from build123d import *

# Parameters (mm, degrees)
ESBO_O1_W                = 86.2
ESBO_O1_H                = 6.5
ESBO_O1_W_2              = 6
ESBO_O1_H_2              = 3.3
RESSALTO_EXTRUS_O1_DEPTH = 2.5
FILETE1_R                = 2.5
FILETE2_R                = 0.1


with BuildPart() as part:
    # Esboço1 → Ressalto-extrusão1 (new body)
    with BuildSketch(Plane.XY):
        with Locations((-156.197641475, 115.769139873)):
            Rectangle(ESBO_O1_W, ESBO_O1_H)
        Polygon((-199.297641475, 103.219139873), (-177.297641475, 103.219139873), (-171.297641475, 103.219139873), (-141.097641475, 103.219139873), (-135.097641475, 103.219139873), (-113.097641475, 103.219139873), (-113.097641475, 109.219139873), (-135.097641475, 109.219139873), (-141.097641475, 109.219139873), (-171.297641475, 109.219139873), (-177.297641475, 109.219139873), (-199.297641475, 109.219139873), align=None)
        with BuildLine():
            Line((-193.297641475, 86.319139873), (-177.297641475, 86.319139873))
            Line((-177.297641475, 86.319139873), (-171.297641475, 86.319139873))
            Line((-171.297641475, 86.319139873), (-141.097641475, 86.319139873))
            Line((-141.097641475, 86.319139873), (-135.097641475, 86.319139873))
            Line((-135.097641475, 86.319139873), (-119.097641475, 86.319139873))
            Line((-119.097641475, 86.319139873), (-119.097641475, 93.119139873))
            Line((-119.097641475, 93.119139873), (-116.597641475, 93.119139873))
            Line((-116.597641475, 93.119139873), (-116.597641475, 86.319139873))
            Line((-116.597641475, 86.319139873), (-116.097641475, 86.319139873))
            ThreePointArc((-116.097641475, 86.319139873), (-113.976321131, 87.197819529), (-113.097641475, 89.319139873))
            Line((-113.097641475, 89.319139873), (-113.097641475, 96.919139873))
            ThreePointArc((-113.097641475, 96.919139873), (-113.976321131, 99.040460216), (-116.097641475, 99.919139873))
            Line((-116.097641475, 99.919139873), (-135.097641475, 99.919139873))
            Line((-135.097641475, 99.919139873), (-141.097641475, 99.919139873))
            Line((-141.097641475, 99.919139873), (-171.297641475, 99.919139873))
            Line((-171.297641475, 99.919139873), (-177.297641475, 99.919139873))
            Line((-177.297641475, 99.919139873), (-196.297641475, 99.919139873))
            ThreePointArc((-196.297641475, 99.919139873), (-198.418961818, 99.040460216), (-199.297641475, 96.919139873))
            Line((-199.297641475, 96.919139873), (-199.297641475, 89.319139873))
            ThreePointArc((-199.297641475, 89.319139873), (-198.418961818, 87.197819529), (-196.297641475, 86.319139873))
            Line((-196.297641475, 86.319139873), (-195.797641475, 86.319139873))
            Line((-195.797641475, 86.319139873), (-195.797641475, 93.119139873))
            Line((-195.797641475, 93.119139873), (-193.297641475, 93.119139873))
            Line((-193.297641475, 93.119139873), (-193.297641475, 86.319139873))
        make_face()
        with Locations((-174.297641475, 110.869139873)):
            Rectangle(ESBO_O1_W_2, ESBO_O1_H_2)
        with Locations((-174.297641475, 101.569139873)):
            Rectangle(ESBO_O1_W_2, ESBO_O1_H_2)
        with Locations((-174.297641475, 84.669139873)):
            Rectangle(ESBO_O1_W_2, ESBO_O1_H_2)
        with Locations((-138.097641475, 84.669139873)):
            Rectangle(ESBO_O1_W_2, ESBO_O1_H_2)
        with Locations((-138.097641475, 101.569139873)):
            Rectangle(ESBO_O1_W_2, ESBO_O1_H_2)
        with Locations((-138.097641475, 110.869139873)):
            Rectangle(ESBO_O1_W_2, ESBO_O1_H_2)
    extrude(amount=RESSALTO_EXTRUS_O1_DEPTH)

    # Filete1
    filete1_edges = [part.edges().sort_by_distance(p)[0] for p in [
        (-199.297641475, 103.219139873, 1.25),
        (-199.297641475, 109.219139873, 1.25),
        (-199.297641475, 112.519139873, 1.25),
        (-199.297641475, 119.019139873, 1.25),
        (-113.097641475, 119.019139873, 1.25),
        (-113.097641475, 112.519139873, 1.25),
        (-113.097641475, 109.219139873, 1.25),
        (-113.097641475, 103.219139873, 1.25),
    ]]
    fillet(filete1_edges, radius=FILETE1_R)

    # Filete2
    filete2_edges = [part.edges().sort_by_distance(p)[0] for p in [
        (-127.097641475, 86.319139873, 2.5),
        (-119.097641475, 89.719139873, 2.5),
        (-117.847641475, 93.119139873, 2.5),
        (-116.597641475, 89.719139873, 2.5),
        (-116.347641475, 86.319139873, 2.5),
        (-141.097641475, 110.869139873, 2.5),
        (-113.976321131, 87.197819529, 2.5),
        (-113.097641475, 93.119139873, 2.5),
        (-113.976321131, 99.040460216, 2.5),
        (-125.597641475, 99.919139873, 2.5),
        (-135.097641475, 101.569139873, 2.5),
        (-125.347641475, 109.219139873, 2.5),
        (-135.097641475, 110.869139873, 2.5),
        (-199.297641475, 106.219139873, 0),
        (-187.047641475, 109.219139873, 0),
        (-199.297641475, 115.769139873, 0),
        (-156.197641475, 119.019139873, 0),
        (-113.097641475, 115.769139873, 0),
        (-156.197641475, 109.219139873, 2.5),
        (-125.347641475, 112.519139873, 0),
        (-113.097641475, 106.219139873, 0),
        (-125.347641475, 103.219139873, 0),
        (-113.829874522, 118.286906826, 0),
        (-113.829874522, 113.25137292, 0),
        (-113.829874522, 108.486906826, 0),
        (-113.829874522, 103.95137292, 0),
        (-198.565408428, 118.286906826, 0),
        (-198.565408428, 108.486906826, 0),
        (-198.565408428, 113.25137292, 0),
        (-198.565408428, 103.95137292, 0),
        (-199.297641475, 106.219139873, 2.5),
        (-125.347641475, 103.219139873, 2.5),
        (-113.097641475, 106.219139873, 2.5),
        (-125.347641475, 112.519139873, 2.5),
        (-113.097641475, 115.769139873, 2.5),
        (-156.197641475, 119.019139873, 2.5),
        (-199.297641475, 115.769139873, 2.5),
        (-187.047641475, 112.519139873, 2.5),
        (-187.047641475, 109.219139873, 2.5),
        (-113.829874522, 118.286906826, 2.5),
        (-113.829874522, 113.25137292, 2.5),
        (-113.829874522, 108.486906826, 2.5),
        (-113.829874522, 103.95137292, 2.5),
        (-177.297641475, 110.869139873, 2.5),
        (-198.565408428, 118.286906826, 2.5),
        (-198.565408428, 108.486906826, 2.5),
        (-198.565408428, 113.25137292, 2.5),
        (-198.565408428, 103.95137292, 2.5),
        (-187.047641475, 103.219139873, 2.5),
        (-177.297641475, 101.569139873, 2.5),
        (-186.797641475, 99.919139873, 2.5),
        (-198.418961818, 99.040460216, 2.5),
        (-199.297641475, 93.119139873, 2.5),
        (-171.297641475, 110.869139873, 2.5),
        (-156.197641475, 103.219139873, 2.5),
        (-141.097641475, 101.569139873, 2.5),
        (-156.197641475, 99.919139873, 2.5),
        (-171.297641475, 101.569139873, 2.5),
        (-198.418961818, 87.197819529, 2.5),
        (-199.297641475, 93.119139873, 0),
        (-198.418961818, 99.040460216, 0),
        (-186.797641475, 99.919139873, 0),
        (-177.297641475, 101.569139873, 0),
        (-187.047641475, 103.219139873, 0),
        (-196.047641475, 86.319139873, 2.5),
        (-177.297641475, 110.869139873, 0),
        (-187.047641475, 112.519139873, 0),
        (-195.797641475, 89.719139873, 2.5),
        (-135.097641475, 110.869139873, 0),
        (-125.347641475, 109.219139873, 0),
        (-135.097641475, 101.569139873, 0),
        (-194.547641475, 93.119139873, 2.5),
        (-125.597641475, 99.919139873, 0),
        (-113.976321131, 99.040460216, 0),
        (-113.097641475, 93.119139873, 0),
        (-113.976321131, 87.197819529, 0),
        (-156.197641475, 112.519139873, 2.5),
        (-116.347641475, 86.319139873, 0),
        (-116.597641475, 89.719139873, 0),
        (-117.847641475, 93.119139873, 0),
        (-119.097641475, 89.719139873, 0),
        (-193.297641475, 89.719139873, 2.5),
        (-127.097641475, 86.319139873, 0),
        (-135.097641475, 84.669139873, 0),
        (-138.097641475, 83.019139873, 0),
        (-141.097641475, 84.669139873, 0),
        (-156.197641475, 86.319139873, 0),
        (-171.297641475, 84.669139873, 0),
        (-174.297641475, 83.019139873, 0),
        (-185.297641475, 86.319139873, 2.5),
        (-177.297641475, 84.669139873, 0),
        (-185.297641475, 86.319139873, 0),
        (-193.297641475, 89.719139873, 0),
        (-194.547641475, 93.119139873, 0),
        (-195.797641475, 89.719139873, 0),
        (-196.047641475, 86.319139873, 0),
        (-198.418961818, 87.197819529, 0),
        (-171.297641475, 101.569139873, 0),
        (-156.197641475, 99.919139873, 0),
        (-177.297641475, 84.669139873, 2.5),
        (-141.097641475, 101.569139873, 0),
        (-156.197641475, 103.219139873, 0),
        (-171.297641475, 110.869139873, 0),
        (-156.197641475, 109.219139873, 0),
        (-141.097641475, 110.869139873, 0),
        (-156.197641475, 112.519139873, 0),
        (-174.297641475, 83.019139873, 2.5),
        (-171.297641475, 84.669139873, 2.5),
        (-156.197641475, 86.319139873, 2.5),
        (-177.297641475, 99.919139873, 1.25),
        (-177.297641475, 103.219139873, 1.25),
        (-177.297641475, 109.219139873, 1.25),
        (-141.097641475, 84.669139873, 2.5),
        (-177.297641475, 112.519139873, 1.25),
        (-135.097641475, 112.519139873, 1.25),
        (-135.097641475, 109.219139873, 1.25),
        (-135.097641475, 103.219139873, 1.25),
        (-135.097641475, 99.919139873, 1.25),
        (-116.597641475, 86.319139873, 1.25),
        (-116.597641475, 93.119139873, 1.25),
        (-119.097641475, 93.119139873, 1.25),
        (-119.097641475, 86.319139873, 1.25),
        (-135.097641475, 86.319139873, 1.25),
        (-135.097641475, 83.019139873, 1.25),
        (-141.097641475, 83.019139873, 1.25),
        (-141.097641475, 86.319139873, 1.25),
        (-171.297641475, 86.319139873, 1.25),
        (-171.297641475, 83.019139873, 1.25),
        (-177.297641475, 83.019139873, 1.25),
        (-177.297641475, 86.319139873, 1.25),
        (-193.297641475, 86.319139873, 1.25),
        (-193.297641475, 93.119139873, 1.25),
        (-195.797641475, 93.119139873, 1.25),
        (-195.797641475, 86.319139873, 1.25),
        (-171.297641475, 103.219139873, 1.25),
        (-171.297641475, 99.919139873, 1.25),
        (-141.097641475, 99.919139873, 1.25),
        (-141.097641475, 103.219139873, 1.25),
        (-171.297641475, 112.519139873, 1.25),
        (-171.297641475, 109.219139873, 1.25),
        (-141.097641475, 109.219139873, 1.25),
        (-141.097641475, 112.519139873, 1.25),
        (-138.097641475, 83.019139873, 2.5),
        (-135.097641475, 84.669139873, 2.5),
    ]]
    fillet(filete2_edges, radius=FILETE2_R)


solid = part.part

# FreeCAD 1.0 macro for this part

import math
import FreeCAD as App
import Part
import Sketcher
from FreeCAD import Vector


def edges_at(feature, points):
    """Names of the edges that pass closest to the given points."""
    edges = feature.Shape.Edges
    near = lambda p: min(range(len(edges)), key=lambda i: edges[i].distToShape(Part.Vertex(*p))[0])
    return sorted({f"Edge{near(p) + 1}" for p in points})

doc = App.newDocument("Part")
body = doc.addObject("PartDesign::Body", "Body")

# Sketch on XY plane
sketch1 = body.newObject("Sketcher::SketchObject", "Sketch")
sketch1.AttachmentSupport = (doc.getObject("XY_Plane"), [""])
sketch1.MapMode = "FlatFace"
sketch1.addGeometry([
    Part.LineSegment(Vector(-199.3, 119, 0), Vector(-199.3, 112.5, 0)),  # 0
    Part.LineSegment(Vector(-199.3, 112.5, 0), Vector(-177.3, 112.5, 0)),  # 1
    Part.LineSegment(Vector(-177.3, 112.5, 0), Vector(-177.3, 109.2, 0)),  # 2
    Part.LineSegment(Vector(-177.3, 109.2, 0), Vector(-199.3, 109.2, 0)),  # 3
    Part.LineSegment(Vector(-199.3, 109.2, 0), Vector(-199.3, 103.2, 0)),  # 4
    Part.LineSegment(Vector(-199.3, 103.2, 0), Vector(-177.3, 103.2, 0)),  # 5
    Part.LineSegment(Vector(-177.3, 103.2, 0), Vector(-177.3, 99.9, 0)),  # 6
    Part.LineSegment(Vector(-177.3, 99.9, 0), Vector(-196.3, 99.9, 0)),  # 7
    Part.ArcOfCircle(Part.Circle(Vector(-196.3, 96.9, 0), Vector(0, 0, 1), 3), math.radians(90), math.radians(180)),  # 8
    Part.LineSegment(Vector(-199.3, 96.9, 0), Vector(-199.3, 89.3, 0)),  # 9
    Part.ArcOfCircle(Part.Circle(Vector(-196.3, 89.3, 0), Vector(0, 0, 1), 3), math.radians(180), math.radians(270)),  # 10
    Part.LineSegment(Vector(-196.3, 86.3, 0), Vector(-195.8, 86.3, 0)),  # 11
    Part.LineSegment(Vector(-195.8, 86.3, 0), Vector(-195.8, 93.1, 0)),  # 12
    Part.LineSegment(Vector(-195.8, 93.1, 0), Vector(-193.3, 93.1, 0)),  # 13
    Part.LineSegment(Vector(-193.3, 93.1, 0), Vector(-193.3, 86.3, 0)),  # 14
    Part.LineSegment(Vector(-193.3, 86.3, 0), Vector(-177.3, 86.3, 0)),  # 15
    Part.LineSegment(Vector(-177.3, 86.3, 0), Vector(-177.3, 83, 0)),  # 16
    Part.LineSegment(Vector(-177.3, 83, 0), Vector(-171.3, 83, 0)),  # 17
    Part.LineSegment(Vector(-171.3, 83, 0), Vector(-171.3, 86.3, 0)),  # 18
    Part.LineSegment(Vector(-171.3, 86.3, 0), Vector(-141.1, 86.3, 0)),  # 19
    Part.LineSegment(Vector(-141.1, 86.3, 0), Vector(-141.1, 83, 0)),  # 20
    Part.LineSegment(Vector(-141.1, 83, 0), Vector(-135.1, 83, 0)),  # 21
    Part.LineSegment(Vector(-135.1, 83, 0), Vector(-135.1, 86.3, 0)),  # 22
    Part.LineSegment(Vector(-135.1, 86.3, 0), Vector(-119.1, 86.3, 0)),  # 23
    Part.LineSegment(Vector(-119.1, 86.3, 0), Vector(-119.1, 93.1, 0)),  # 24
    Part.LineSegment(Vector(-119.1, 93.1, 0), Vector(-116.6, 93.1, 0)),  # 25
    Part.LineSegment(Vector(-116.6, 93.1, 0), Vector(-116.6, 86.3, 0)),  # 26
    Part.LineSegment(Vector(-116.6, 86.3, 0), Vector(-116.1, 86.3, 0)),  # 27
    Part.ArcOfCircle(Part.Circle(Vector(-116.1, 89.3, 0), Vector(0, 0, 1), 3), math.radians(-90), math.radians(0)),  # 28
    Part.LineSegment(Vector(-113.1, 89.3, 0), Vector(-113.1, 96.9, 0)),  # 29
    Part.ArcOfCircle(Part.Circle(Vector(-116.1, 96.9, 0), Vector(0, 0, 1), 3), math.radians(0), math.radians(90)),  # 30
    Part.LineSegment(Vector(-116.1, 99.9, 0), Vector(-135.1, 99.9, 0)),  # 31
    Part.LineSegment(Vector(-135.1, 99.9, 0), Vector(-135.1, 103.2, 0)),  # 32
    Part.LineSegment(Vector(-135.1, 103.2, 0), Vector(-113.1, 103.2, 0)),  # 33
    Part.LineSegment(Vector(-113.1, 103.2, 0), Vector(-113.1, 109.2, 0)),  # 34
    Part.LineSegment(Vector(-113.1, 109.2, 0), Vector(-135.1, 109.2, 0)),  # 35
    Part.LineSegment(Vector(-135.1, 109.2, 0), Vector(-135.1, 112.5, 0)),  # 36
    Part.LineSegment(Vector(-135.1, 112.5, 0), Vector(-113.1, 112.5, 0)),  # 37
    Part.LineSegment(Vector(-113.1, 112.5, 0), Vector(-113.1, 119, 0)),  # 38
    Part.LineSegment(Vector(-113.1, 119, 0), Vector(-199.3, 119, 0)),  # 39
    Part.LineSegment(Vector(-141.1, 109.2, 0), Vector(-171.3, 109.2, 0)),  # 40
    Part.LineSegment(Vector(-171.3, 109.2, 0), Vector(-171.3, 112.5, 0)),  # 41
    Part.LineSegment(Vector(-171.3, 112.5, 0), Vector(-141.1, 112.5, 0)),  # 42
    Part.LineSegment(Vector(-141.1, 112.5, 0), Vector(-141.1, 109.2, 0)),  # 43
    Part.LineSegment(Vector(-141.1, 99.9, 0), Vector(-171.3, 99.9, 0)),  # 44
    Part.LineSegment(Vector(-171.3, 99.9, 0), Vector(-171.3, 103.2, 0)),  # 45
    Part.LineSegment(Vector(-171.3, 103.2, 0), Vector(-141.1, 103.2, 0)),  # 46
    Part.LineSegment(Vector(-141.1, 103.2, 0), Vector(-141.1, 99.9, 0)),  # 47
], False)
sketch1.addConstraint([
    Sketcher.Constraint("Coincident", 0, 2, 1, 1),
    Sketcher.Constraint("Coincident", 1, 2, 2, 1),
    Sketcher.Constraint("Coincident", 2, 2, 3, 1),
    Sketcher.Constraint("Coincident", 3, 2, 4, 1),
    Sketcher.Constraint("Coincident", 4, 2, 5, 1),
    Sketcher.Constraint("Coincident", 5, 2, 6, 1),
    Sketcher.Constraint("Coincident", 6, 2, 7, 1),
    Sketcher.Constraint("Tangent", 7, 2, 8, 1),
    Sketcher.Constraint("Tangent", 8, 2, 9, 1),
    Sketcher.Constraint("Tangent", 9, 2, 10, 1),
    Sketcher.Constraint("Tangent", 10, 2, 11, 1),
    Sketcher.Constraint("Coincident", 11, 2, 12, 1),
    Sketcher.Constraint("Coincident", 12, 2, 13, 1),
    Sketcher.Constraint("Coincident", 13, 2, 14, 1),
    Sketcher.Constraint("Coincident", 14, 2, 15, 1),
    Sketcher.Constraint("Coincident", 15, 2, 16, 1),
    Sketcher.Constraint("Coincident", 16, 2, 17, 1),
    Sketcher.Constraint("Coincident", 17, 2, 18, 1),
    Sketcher.Constraint("Coincident", 18, 2, 19, 1),
    Sketcher.Constraint("Coincident", 19, 2, 20, 1),
    Sketcher.Constraint("Coincident", 20, 2, 21, 1),
    Sketcher.Constraint("Coincident", 21, 2, 22, 1),
    Sketcher.Constraint("Coincident", 22, 2, 23, 1),
    Sketcher.Constraint("Coincident", 23, 2, 24, 1),
    Sketcher.Constraint("Coincident", 24, 2, 25, 1),
    Sketcher.Constraint("Coincident", 25, 2, 26, 1),
    Sketcher.Constraint("Coincident", 26, 2, 27, 1),
    Sketcher.Constraint("Tangent", 27, 2, 28, 1),
    Sketcher.Constraint("Tangent", 28, 2, 29, 1),
    Sketcher.Constraint("Tangent", 29, 2, 30, 1),
    Sketcher.Constraint("Tangent", 30, 2, 31, 1),
    Sketcher.Constraint("Coincident", 31, 2, 32, 1),
    Sketcher.Constraint("Coincident", 32, 2, 33, 1),
    Sketcher.Constraint("Coincident", 33, 2, 34, 1),
    Sketcher.Constraint("Coincident", 34, 2, 35, 1),
    Sketcher.Constraint("Coincident", 35, 2, 36, 1),
    Sketcher.Constraint("Coincident", 36, 2, 37, 1),
    Sketcher.Constraint("Coincident", 37, 2, 38, 1),
    Sketcher.Constraint("Coincident", 38, 2, 39, 1),
    Sketcher.Constraint("Coincident", 39, 2, 0, 1),
    Sketcher.Constraint("Coincident", 40, 2, 41, 1),
    Sketcher.Constraint("Coincident", 41, 2, 42, 1),
    Sketcher.Constraint("Coincident", 42, 2, 43, 1),
    Sketcher.Constraint("Coincident", 43, 2, 40, 1),
    Sketcher.Constraint("Coincident", 44, 2, 45, 1),
    Sketcher.Constraint("Coincident", 45, 2, 46, 1),
    Sketcher.Constraint("Coincident", 46, 2, 47, 1),
    Sketcher.Constraint("Coincident", 47, 2, 44, 1),
    Sketcher.Constraint("Vertical", 0),
    Sketcher.Constraint("Horizontal", 1),
    Sketcher.Constraint("Vertical", 2),
    Sketcher.Constraint("Horizontal", 3),
    Sketcher.Constraint("Vertical", 4),
    Sketcher.Constraint("Horizontal", 5),
    Sketcher.Constraint("Vertical", 6),
    Sketcher.Constraint("Horizontal", 7),
    Sketcher.Constraint("Vertical", 9),
    Sketcher.Constraint("Horizontal", 11),
    Sketcher.Constraint("Vertical", 12),
    Sketcher.Constraint("Horizontal", 13),
    Sketcher.Constraint("Vertical", 14),
    Sketcher.Constraint("Horizontal", 15),
    Sketcher.Constraint("Vertical", 16),
    Sketcher.Constraint("Horizontal", 17),
    Sketcher.Constraint("Vertical", 18),
    Sketcher.Constraint("Horizontal", 19),
    Sketcher.Constraint("Vertical", 20),
    Sketcher.Constraint("Horizontal", 21),
    Sketcher.Constraint("Vertical", 22),
    Sketcher.Constraint("Horizontal", 23),
    Sketcher.Constraint("Vertical", 24),
    Sketcher.Constraint("Horizontal", 25),
    Sketcher.Constraint("Vertical", 26),
    Sketcher.Constraint("Horizontal", 27),
    Sketcher.Constraint("Vertical", 29),
    Sketcher.Constraint("Horizontal", 31),
    Sketcher.Constraint("Vertical", 32),
    Sketcher.Constraint("Horizontal", 33),
    Sketcher.Constraint("Vertical", 34),
    Sketcher.Constraint("Horizontal", 35),
    Sketcher.Constraint("Vertical", 36),
    Sketcher.Constraint("Horizontal", 37),
    Sketcher.Constraint("Vertical", 38),
    Sketcher.Constraint("Horizontal", 39),
    Sketcher.Constraint("Horizontal", 40),
    Sketcher.Constraint("Vertical", 41),
    Sketcher.Constraint("Horizontal", 42),
    Sketcher.Constraint("Vertical", 43),
    Sketcher.Constraint("Horizontal", 44),
    Sketcher.Constraint("Vertical", 45),
    Sketcher.Constraint("Horizontal", 46),
    Sketcher.Constraint("Vertical", 47),
    Sketcher.Constraint("Equal", 8, 10),
    Sketcher.Constraint("Equal", 10, 28),
    Sketcher.Constraint("Equal", 28, 30),
    Sketcher.Constraint("Horizontal", 10, 3, 28, 3),
    Sketcher.Constraint("Horizontal", 8, 3, 30, 3),
    Sketcher.Constraint("Horizontal", 11, 2, 14, 2),
    Sketcher.Constraint("Horizontal", 15, 2, 18, 2),
    Sketcher.Constraint("Horizontal", 17, 2, 20, 2),
    Sketcher.Constraint("Horizontal", 19, 2, 22, 2),
    Sketcher.Constraint("Horizontal", 13, 2, 24, 2),
    Sketcher.Constraint("Horizontal", 5, 2, 32, 2),
    Sketcher.Constraint("Horizontal", 3, 2, 34, 2),
    Sketcher.Constraint("Horizontal", 1, 2, 36, 2),
    Sketcher.Constraint("Horizontal", 35, 2, 40, 2),
    Sketcher.Constraint("Horizontal", 37, 2, 41, 2),
    Sketcher.Constraint("Horizontal", 31, 2, 44, 2),
    Sketcher.Constraint("Horizontal", 33, 2, 45, 2),
    Sketcher.Constraint("Vertical", 0, 2, 3, 2),
    Sketcher.Constraint("Vertical", 2, 2, 5, 2),
    Sketcher.Constraint("Vertical", 4, 2, 8, 2),
    Sketcher.Constraint("Vertical", 6, 2, 15, 2),
    Sketcher.Constraint("Vertical", 22, 2, 31, 2),
    Sketcher.Constraint("Vertical", 29, 2, 33, 2),
    Sketcher.Constraint("Vertical", 32, 2, 35, 2),
    Sketcher.Constraint("Vertical", 34, 2, 37, 2),
    Sketcher.Constraint("Vertical", 18, 2, 40, 2),
    Sketcher.Constraint("Vertical", 20, 2, 42, 2),
    Sketcher.Constraint("Vertical", 41, 2, 44, 2),
    Sketcher.Constraint("Vertical", 43, 2, 46, 2),
    Sketcher.Constraint("Equal", 17, 21),
    Sketcher.Constraint("Equal", 15, 23),
    Sketcher.Constraint("Equal", 13, 25),
    Sketcher.Constraint("Equal", 11, 27),
    Sketcher.Constraint("Equal", 21, 4),
    Sketcher.Constraint("Equal", 2, 6),
    Sketcher.Constraint("Equal", 6, 16),
    Sketcher.Constraint("Radius", 8, 3.0),
    Sketcher.Constraint("DistanceX", 1, 1, 1, 2, 22.0),
    Sketcher.Constraint("DistanceX", 15, 1, 15, 2, 16.0),
    Sketcher.Constraint("DistanceX", 17, 1, 17, 2, 6.0),
    Sketcher.Constraint("DistanceX", 11, 1, 11, 2, 0.5),
    Sketcher.Constraint("DistanceX", 19, 1, 19, 2, 30.2),
    Sketcher.Constraint("DistanceY", 0, 2, 0, 1, 6.5),
    Sketcher.Constraint("DistanceY", 2, 2, 2, 1, 3.3),
    Sketcher.Constraint("DistanceY", 9, 2, 9, 1, 7.6),
    Sketcher.Constraint("DistanceY", 12, 1, 12, 2, 6.8),
    Sketcher.Constraint("DistanceX", 8, 3, -1, 1, 196.297641),
    Sketcher.Constraint("DistanceY", -1, 1, 8, 3, 96.91914),
])
pad1 = body.newObject("PartDesign::Pad", "Pad")
pad1.Profile = sketch1
pad1.Length = 2.5
doc.recompute()

fillet = body.newObject("PartDesign::Fillet", "Fillet")
fillet.Base = (pad1, edges_at(pad1, [
    (-199.298, 103.219, 1.25),
    (-199.298, 109.219, 1.25),
    (-199.298, 112.519, 1.25),
    (-199.298, 119.019, 1.25),
    (-113.098, 119.019, 1.25),
    (-113.098, 112.519, 1.25),
    (-113.098, 109.219, 1.25),
    (-113.098, 103.219, 1.25),
]))
fillet.Radius = 2.5
doc.recompute()

fillet2 = body.newObject("PartDesign::Fillet", "Fillet001")
fillet2.Base = (fillet, ["Edge1"])
fillet2.UseAllEdges = True
fillet2.Radius = 0.1

doc.recompute()
